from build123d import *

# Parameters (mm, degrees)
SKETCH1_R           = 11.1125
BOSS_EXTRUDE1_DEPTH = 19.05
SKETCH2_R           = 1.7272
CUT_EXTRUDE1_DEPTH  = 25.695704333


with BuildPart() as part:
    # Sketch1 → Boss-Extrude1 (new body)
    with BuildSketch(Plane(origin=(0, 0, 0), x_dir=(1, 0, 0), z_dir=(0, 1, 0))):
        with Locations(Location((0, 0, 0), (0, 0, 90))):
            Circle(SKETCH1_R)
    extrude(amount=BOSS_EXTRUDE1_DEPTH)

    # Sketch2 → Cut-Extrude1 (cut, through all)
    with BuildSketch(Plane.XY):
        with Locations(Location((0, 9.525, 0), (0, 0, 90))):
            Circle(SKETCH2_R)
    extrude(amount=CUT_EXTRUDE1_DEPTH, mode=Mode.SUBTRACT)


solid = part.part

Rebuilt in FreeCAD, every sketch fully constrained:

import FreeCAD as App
import Part
import Sketcher
Q = App.Units.Quantity

doc = App.newDocument("Part")
params = doc.addObject("Spreadsheet::Sheet", "Params")
for row, (alias, value) in enumerate([
    ("sketch1_diameter", "0.875 in"),
    ("pad1_length", "0.75 in"),
    ("sketch2_diameter", "0.136 in"),
], start=1):
    params.set(f"A{row}", alias)
    params.set(f"B{row}", "=" + value)
    params.setAlias(f"B{row}", alias)

body = doc.addObject("PartDesign::Body", "Body")

# Sketch on XZ plane
sketch1 = doc.addObject("Sketcher::SketchObject", "Sketch")
body.addObject(sketch1)
sketch1.AttachmentSupport = (doc.XZ_Plane, [""])
sketch1.MapMode = "FlatFace"
sketch1.addGeometry(Part.Circle(App.Vector(0, 0, 0), App.Vector(0, 0, 1), 11.1125), False)
sketch1.addConstraint([
    Sketcher.Constraint("Coincident", 0, 3, -1, 1),
    Sketcher.Constraint("Diameter", 0, Q("0.875 in")),
])
sketch1.setExpression("Constraints[1]", "Params.sketch1_diameter")
pad1 = doc.addObject("PartDesign::Pad", "Pad")
body.addObject(pad1)
pad1.Profile = sketch1
pad1.setExpression("Length", "Params.pad1_length")
pad1.Reversed = True

# Sketch on XY plane
sketch2 = doc.addObject("Sketcher::SketchObject", "Sketch001")
body.addObject(sketch2)
sketch2.AttachmentSupport = (doc.XY_Plane, [""])
sketch2.MapMode = "FlatFace"
sketch2.addGeometry(Part.Circle(App.Vector(0, 9.525, 0), App.Vector(0, 0, 1), 1.7272), False)
sketch2.addConstraint([
    Sketcher.Constraint("PointOnObject", 0, 3, -2),
    Sketcher.Constraint("Diameter", 0, Q("0.136 in")),
    Sketcher.Constraint("DistanceY", -1, 1, 0, 3, Q("0.375 in")),
])
sketch2.setExpression("Constraints[1]", "Params.sketch2_diameter")
pocket1 = doc.addObject("PartDesign::Pocket", "Pocket")
body.addObject(pocket1)
pocket1.Profile = sketch2
pocket1.Type = "ThroughAll"
pocket1.Reversed = True

doc.recompute()
